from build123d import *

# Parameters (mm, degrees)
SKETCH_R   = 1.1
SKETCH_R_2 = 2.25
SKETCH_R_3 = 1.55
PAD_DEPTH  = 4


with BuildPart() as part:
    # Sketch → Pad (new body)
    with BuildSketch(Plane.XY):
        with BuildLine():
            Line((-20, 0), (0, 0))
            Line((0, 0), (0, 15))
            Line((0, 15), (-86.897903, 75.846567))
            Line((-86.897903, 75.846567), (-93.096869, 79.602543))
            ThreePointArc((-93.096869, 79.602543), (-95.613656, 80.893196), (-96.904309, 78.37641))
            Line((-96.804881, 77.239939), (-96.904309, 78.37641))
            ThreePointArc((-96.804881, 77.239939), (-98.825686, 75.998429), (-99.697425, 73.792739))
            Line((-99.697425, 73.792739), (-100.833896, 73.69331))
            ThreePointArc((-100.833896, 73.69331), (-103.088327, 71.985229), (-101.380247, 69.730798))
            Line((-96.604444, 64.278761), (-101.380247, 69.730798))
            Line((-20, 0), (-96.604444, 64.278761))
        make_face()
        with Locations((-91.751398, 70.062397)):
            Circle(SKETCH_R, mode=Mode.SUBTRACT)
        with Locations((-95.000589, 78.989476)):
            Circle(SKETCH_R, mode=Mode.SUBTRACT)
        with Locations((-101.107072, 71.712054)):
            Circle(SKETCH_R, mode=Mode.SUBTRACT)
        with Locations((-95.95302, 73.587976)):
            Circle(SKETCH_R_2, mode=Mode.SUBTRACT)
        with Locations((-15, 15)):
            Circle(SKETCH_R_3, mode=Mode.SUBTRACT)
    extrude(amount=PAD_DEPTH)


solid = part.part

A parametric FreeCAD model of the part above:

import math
import FreeCAD as App
import Part
import Sketcher

V = App.Vector
Q = App.Units.Quantity

doc = App.newDocument("Part")
body = doc.addObject("PartDesign::Body", "Body")

sketch1 = body.newObject("Sketcher::SketchObject", "Sketch")
sketch1.AttachmentSupport = (doc.getObject("XY_Plane"), [""])
sketch1.MapMode = "FlatFace"
sketch1.addGeometry(Part.LineSegment(V(-20, 0, 0), V(0, 0, 0)), False)
sketch1.addGeometry(Part.LineSegment(V(0, 0, 0), V(0, 15, 0)), False)
sketch1.addGeometry(Part.LineSegment(V(0, 15, 0), V(-86.897903, 75.846567, 0)), False)
sketch1.addGeometry(Part.LineSegment(V(-86.897903, 75.846567, 0), V(-93.096869, 79.602543, 0)), False)
sketch1.addGeometry(Part.ArcOfCircle(Part.Circle(V(-95.000589, 78.989476, 0), V(0, 0, 1), 2), math.radians(17.85044), math.radians(197.850422)), False)
sketch1.addGeometry(Part.LineSegment(V(-96.904309, 78.37641, 0), V(-96.804881, 77.239939, 0)), False)
sketch1.addGeometry(Part.ArcOfCircle(Part.Circle(V(-95.953017, 73.587974, 0), V(0, 0, 1), 3.750003), math.radians(103.130136), math.radians(176.869869)), False)
sketch1.addGeometry(Part.LineSegment(V(-99.697425, 73.792739, 0), V(-100.833896, 73.69331, 0)), False)
sketch1.addGeometry(Part.ArcOfCircle(Part.Circle(V(-101.107071, 71.712054, 0), V(0, 0, 1), 2), math.radians(82.149575), math.radians(262.149542)), False)
sketch1.addGeometry(Part.LineSegment(V(-101.380247, 69.730798, 0), V(-96.604444, 64.278761, 0)), False)
sketch1.addGeometry(Part.LineSegment(V(-96.604444, 64.278761, 0), V(-20, 0, 0)), False)
sketch1.addGeometry(Part.Circle(V(-15, 15, 0), V(0, 0, 1), 1.55), False)
sketch1.addGeometry(Part.Circle(V(-101.107072, 71.712054, 0), V(0, 0, 1), 1.1), False)
sketch1.addGeometry(Part.Circle(V(-91.751398, 70.062397, 0), V(0, 0, 1), 1.1), False)
sketch1.addGeometry(Part.Circle(V(-95.95302, 73.587976, 0), V(0, 0, 1), 2.25), False)
sketch1.addGeometry(Part.Circle(V(-95.000589, 78.989476, 0), V(0, 0, 1), 1.1), False)
sketch1.addConstraint(Sketcher.Constraint("Coincident", 0, 2, 1, 1))
sketch1.addConstraint(Sketcher.Constraint("Coincident", 1, 2, 2, 1))
sketch1.addConstraint(Sketcher.Constraint("Coincident", 2, 2, 3, 1))
sketch1.addConstraint(Sketcher.Constraint("Coincident", 3, 2, 4, 1))
sketch1.addConstraint(Sketcher.Constraint("Coincident", 4, 2, 5, 1))
sketch1.addConstraint(Sketcher.Constraint("Coincident", 5, 2, 6, 1))
sketch1.addConstraint(Sketcher.Constraint("Coincident", 6, 2, 7, 1))
sketch1.addConstraint(Sketcher.Constraint("Coincident", 7, 2, 8, 1))
sketch1.addConstraint(Sketcher.Constraint("Coincident", 8, 2, 9, 1))
sketch1.addConstraint(Sketcher.Constraint("Coincident", 9, 2, 10, 1))
sketch1.addConstraint(Sketcher.Constraint("Coincident", 10, 2, 0, 1))
sketch1.addConstraint(Sketcher.Constraint("Horizontal", 0))
sketch1.addConstraint(Sketcher.Constraint("Vertical", 1))
sketch1.addConstraint(Sketcher.Constraint("Coincident", 0, 2, -1, 1))
sketch1.addConstraint(Sketcher.Constraint("Coincident", 12, 3, 8, 3))
sketch1.addConstraint(Sketcher.Constraint("Coincident", 14, 3, 6, 3))
sketch1.addConstraint(Sketcher.Constraint("Coincident", 15, 3, 4, 3))
sketch1.addConstraint(Sketcher.Constraint("Equal", 4, 8))
sketch1.addConstraint(Sketcher.Constraint("Equal", 12, 13))
sketch1.addConstraint(Sketcher.Constraint("Equal", 13, 15))
sketch1.addConstraint(Sketcher.Constraint("Perpendicular", 5, 7))
sketch1.addConstraint(Sketcher.Constraint("Horizontal", 11, 3, 1, 2))
sketch1.addConstraint(Sketcher.Constraint("Equal", 5, 7))
sketch1.addConstraint(Sketcher.Constraint("Radius", 4, Q("2 mm")))
sketch1.addConstraint(Sketcher.Constraint("Diameter", 11, Q("3.1 mm")))
sketch1.addConstraint(Sketcher.Constraint("Diameter", 12, Q("2.2 mm")))
sketch1.addConstraint(Sketcher.Constraint("Diameter", 14, Q("4.5 mm")))
sketch1.addConstraint(Sketcher.Constraint("DistanceX", 0, 1, 0, 2, Q("20 mm")))
sketch1.addConstraint(Sketcher.Constraint("DistanceY", 1, 1, 1, 2, Q("15 mm")))
sketch1.addConstraint(Sketcher.Constraint("Angle", 2, Q("145 deg")))
sketch1.addConstraint(Sketcher.Constraint("Angle", 5, Q("-85.000016 deg")))
sketch1.addConstraint(Sketcher.Constraint("Angle", 10, Q("-40 deg")))
sketch1.addConstraint(Sketcher.Constraint("Distance", 10, Q("100 mm")))
sketch1.addConstraint(Sketcher.Constraint("DistanceX", 11, 3, -1, 1, Q("15 mm")))
sketch1.addConstraint(Sketcher.Constraint("Radius", 6, Q("3.750003 mm")))
sketch1.addConstraint(Sketcher.Constraint("DistanceY", 14, 3, 4, 3, Q("5.4015 mm")))
sketch1.addConstraint(Sketcher.Constraint("DistanceY", 6, 2, 5, 2, Q("3.4472 mm")))
sketch1.addConstraint(Sketcher.Constraint("Distance", 2, Q("106.082752 mm")))
sketch1.addConstraint(Sketcher.Constraint("Distance", 3, Q("7.248071 mm")))
sketch1.addConstraint(Sketcher.Constraint("DistanceX", 4, 3, -1, 1, Q("95.000589 mm")))
sketch1.addConstraint(Sketcher.Constraint("DistanceX", 8, 3, -1, 1, Q("101.107071 mm")))
sketch1.addConstraint(Sketcher.Constraint("DistanceX", 14, 3, -1, 1, Q("95.95302 mm")))
sketch1.addConstraint(Sketcher.Constraint("DistanceX", 3, 2, -1, 1, Q("93.096869 mm")))
sketch1.addConstraint(Sketcher.Constraint("DistanceX", 4, 2, -1, 1, Q("96.904309 mm")))
sketch1.addConstraint(Sketcher.Constraint("DistanceX", 6, 3, 13, 3, Q("4.201619 mm")))
sketch1.addConstraint(Sketcher.Constraint("DistanceY", 13, 3, 4, 3, Q("8.927079 mm")))
sketch1.addConstraint(Sketcher.Constraint("DistanceX", 8, 2, 7, 2, Q("0.546351 mm")))
pad1 = body.newObject("PartDesign::Pad", "Pad")
pad1.Profile = sketch1
pad1.Length = 4

doc.recompute()
